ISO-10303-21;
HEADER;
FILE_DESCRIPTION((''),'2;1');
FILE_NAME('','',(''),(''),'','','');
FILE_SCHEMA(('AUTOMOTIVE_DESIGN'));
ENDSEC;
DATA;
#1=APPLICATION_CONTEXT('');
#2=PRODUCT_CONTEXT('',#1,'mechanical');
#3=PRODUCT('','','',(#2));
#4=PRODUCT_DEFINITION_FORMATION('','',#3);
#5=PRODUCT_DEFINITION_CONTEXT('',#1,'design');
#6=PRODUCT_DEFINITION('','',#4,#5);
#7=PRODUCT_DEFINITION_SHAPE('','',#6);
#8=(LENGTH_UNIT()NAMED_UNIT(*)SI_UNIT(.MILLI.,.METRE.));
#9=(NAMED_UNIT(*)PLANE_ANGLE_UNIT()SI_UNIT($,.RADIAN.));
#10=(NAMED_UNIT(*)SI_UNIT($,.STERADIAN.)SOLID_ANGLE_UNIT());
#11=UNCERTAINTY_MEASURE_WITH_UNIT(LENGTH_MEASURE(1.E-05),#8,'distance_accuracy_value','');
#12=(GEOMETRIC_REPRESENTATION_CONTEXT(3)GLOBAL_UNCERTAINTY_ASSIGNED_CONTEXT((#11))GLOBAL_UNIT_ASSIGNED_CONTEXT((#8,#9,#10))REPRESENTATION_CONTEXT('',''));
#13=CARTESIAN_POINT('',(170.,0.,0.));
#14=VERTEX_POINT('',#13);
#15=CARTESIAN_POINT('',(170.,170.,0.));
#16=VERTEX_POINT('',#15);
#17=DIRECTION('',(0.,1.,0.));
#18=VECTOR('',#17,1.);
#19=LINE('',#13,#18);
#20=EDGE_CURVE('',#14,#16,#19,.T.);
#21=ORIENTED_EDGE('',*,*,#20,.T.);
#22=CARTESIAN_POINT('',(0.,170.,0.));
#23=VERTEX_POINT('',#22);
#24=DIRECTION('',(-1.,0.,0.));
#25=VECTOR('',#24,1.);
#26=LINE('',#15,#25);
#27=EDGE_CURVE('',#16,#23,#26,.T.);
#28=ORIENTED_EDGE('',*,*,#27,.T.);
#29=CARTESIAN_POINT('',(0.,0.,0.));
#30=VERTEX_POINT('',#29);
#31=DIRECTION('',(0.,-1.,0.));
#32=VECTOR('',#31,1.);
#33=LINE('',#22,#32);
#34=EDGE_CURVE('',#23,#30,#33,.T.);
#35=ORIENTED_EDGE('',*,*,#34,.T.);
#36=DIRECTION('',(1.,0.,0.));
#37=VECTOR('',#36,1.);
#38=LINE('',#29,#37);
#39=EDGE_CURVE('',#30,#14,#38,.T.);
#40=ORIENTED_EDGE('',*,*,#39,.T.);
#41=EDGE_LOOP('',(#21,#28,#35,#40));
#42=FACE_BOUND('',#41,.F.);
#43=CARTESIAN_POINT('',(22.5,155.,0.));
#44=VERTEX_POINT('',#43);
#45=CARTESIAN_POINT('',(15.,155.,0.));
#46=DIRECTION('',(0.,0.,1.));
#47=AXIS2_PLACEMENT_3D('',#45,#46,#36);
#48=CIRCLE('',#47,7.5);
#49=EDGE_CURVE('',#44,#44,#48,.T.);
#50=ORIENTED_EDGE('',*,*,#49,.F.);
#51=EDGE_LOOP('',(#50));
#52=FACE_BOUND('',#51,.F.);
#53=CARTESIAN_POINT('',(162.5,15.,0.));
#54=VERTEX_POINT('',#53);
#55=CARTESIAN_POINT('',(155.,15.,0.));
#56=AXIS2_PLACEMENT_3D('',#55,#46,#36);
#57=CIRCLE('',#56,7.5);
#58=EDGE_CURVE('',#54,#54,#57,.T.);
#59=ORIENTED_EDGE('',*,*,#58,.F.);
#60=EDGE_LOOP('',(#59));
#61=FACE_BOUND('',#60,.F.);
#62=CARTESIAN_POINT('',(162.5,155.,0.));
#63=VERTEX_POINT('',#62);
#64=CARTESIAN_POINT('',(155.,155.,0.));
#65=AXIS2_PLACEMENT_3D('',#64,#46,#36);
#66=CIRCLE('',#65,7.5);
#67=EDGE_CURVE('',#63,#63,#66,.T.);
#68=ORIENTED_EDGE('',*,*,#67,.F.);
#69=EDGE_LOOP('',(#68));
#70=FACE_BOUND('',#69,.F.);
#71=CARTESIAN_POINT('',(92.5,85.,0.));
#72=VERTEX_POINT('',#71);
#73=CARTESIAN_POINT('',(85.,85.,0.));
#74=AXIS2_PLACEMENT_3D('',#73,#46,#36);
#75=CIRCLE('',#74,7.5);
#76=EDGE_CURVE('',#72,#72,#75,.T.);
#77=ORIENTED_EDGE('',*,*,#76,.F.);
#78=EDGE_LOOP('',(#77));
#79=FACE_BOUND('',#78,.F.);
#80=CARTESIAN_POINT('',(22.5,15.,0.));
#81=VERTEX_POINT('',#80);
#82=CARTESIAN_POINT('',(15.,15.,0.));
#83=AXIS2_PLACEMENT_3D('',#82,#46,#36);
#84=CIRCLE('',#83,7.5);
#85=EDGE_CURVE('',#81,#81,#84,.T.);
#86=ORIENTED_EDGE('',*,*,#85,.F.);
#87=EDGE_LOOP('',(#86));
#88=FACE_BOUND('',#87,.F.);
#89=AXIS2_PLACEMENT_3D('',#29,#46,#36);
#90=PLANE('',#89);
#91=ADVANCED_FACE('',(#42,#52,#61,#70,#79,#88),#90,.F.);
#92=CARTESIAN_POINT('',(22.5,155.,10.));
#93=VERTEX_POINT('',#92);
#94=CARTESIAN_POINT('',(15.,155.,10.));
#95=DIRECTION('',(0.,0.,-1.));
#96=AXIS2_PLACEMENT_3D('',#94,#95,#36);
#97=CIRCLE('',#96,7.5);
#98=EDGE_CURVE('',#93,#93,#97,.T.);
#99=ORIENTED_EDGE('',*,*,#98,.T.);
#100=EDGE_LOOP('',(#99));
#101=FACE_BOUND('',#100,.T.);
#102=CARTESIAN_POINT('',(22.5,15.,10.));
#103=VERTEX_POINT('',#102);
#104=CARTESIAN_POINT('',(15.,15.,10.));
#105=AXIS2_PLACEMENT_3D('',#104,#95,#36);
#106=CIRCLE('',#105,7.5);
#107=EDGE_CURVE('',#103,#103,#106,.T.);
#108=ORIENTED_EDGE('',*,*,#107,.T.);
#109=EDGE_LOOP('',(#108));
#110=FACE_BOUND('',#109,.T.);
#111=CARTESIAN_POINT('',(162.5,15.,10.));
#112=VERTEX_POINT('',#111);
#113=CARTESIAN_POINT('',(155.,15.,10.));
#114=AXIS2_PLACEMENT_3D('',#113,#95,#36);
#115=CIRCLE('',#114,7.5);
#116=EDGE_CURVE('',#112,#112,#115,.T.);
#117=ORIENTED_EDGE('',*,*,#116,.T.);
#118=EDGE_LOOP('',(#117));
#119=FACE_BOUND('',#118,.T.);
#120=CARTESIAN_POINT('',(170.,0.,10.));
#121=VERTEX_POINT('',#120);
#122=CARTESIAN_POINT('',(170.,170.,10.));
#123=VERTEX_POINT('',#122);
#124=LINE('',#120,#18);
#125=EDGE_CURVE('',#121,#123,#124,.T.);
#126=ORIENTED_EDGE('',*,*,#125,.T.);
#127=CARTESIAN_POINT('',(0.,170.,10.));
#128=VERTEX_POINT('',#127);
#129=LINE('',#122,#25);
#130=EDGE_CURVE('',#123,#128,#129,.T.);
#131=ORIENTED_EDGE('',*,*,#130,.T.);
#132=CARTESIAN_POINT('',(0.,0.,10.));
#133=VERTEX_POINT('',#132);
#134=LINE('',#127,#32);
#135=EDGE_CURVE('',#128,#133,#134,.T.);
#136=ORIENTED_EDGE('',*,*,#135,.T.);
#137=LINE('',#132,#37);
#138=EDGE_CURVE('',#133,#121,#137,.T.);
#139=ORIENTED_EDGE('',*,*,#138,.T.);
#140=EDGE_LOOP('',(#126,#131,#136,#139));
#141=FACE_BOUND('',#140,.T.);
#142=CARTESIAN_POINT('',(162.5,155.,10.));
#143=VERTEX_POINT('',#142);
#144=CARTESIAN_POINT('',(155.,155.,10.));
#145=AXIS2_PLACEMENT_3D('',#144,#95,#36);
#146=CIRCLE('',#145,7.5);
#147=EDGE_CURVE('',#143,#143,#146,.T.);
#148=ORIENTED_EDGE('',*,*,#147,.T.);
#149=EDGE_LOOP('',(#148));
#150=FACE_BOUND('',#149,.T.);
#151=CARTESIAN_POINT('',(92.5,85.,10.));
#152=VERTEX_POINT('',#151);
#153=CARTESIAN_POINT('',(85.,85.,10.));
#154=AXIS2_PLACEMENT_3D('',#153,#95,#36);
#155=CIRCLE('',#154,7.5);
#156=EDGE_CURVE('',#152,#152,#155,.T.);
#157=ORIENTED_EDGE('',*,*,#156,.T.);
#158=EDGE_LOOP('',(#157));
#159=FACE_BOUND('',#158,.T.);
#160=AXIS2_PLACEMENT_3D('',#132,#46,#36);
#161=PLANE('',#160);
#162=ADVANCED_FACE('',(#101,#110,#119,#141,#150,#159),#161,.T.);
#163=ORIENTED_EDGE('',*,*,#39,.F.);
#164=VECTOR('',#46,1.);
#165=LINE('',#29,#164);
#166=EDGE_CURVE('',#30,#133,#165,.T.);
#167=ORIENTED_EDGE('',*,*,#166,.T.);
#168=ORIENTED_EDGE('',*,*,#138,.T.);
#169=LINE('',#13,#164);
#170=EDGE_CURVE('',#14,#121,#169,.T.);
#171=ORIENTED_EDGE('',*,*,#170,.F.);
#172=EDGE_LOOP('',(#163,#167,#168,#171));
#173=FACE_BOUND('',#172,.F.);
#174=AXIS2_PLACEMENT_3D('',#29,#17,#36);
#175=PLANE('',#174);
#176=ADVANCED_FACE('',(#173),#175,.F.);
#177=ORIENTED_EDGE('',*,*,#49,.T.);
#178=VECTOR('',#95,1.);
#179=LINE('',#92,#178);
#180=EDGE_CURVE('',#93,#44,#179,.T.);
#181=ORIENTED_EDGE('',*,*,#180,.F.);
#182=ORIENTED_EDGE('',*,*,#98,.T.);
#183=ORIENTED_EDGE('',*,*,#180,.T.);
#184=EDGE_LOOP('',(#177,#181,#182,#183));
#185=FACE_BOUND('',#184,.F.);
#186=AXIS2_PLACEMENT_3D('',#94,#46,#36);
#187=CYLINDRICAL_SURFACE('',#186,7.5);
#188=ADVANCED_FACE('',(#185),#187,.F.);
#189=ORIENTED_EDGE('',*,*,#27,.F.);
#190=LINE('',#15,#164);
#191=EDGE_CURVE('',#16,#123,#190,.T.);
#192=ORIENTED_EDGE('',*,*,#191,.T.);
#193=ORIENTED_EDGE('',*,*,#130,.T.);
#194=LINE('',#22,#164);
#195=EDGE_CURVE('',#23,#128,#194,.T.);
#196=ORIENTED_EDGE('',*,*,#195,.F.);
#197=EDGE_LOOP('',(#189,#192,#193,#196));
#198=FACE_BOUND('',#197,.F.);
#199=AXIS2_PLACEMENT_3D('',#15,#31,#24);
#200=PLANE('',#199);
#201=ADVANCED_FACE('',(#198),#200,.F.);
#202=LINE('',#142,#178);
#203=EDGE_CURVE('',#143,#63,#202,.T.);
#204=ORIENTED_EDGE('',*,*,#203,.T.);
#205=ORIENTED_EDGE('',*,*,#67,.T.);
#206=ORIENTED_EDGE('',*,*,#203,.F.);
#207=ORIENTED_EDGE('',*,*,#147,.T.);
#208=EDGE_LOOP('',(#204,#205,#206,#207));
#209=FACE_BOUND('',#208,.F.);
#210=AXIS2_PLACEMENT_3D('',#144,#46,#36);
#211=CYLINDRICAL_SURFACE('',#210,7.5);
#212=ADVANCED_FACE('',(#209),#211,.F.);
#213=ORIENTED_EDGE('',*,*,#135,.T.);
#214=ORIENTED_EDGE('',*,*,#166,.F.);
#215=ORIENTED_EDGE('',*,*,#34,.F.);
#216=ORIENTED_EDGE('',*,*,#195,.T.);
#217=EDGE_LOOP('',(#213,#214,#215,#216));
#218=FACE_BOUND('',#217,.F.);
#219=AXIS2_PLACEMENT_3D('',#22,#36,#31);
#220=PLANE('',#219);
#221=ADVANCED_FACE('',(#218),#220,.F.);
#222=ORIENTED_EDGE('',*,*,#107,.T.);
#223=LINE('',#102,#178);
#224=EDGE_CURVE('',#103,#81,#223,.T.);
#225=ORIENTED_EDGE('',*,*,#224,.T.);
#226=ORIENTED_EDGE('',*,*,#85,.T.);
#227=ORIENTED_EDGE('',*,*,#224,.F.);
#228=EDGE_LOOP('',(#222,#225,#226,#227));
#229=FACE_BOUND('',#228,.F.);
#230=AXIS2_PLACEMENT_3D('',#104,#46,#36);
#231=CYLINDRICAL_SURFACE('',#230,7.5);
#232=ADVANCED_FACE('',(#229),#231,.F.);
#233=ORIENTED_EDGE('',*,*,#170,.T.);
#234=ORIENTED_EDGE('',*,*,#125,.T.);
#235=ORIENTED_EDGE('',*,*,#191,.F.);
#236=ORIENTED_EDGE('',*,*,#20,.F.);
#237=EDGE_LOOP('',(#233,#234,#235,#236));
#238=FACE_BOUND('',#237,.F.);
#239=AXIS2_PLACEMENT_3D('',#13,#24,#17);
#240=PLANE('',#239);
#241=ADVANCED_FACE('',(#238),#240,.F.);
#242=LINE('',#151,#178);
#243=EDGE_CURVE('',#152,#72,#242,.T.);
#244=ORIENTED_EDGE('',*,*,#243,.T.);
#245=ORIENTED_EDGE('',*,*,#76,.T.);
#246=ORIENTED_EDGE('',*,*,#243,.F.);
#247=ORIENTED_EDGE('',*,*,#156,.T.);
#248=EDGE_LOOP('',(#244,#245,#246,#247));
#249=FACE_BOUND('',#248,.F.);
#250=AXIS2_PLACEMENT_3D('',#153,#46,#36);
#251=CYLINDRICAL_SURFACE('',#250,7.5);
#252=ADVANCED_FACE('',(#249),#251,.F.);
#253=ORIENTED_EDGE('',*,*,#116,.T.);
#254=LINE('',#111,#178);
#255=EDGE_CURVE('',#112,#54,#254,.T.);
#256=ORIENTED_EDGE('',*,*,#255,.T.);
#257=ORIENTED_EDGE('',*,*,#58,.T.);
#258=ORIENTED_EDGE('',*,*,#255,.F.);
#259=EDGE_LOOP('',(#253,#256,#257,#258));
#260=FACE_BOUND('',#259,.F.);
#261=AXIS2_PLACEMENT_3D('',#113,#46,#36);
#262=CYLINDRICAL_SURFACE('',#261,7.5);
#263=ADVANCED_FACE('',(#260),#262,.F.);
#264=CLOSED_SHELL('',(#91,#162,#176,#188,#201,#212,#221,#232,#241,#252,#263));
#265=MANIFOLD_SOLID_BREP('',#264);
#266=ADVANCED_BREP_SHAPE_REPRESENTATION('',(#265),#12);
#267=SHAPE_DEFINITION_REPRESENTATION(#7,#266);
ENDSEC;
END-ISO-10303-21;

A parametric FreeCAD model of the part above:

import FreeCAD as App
import Part
import Sketcher


def add_polygon(sketch, points):
    """Adds a closed chain of lines whose ends are joined by coincident constraints."""
    first, n = sketch.GeometryCount, len(points)
    for a, b in zip(points, points[1:] + points[:1]):
        sketch.addGeometry(Part.LineSegment(App.Vector(*a, 0), App.Vector(*b, 0)), False)
    for i in range(n):
        sketch.addConstraint(Sketcher.Constraint("Coincident", first + i, 2, first + (i + 1) % n, 1))

doc = App.newDocument("Part")
body = doc.addObject("PartDesign::Body", "Body")

# Sketch on XY plane
sketch1 = body.newObject("Sketcher::SketchObject", "Sketch")
sketch1.AttachmentSupport = (doc.getObject("XY_Plane"), [""])
sketch1.MapMode = "FlatFace"
add_polygon(sketch1, [(0, 170), (0, 0), (170, 0), (170, 170)])  # lines 0-3
sketch1.addConstraint([
    Sketcher.Constraint("Vertical", 0),
    Sketcher.Constraint("Horizontal", 1),
    Sketcher.Constraint("Vertical", 2),
    Sketcher.Constraint("Horizontal", 3),
    Sketcher.Constraint("Coincident", 0, 2, -1, 1),
    Sketcher.Constraint("Equal", 3, 0),
    Sketcher.Constraint("DistanceX", 1, 1, 1, 2, 170.0),
])
pad1 = body.newObject("PartDesign::Pad", "Pad")
pad1.Profile = sketch1
pad1.Length = 10

# Sketch on XY plane
sketch2 = body.newObject("Sketcher::SketchObject", "Sketch001")
sketch2.AttachmentSupport = (doc.getObject("XY_Plane"), [""])
sketch2.MapMode = "FlatFace"
sketch2.AttachmentOffset = App.Placement(App.Vector(0, 0, 10), App.Rotation())
sketch2.addGeometry([
    Part.Circle(App.Vector(15, 15, 0), App.Vector(0, 0, 1), 7.5),
    Part.Circle(App.Vector(155, 15, 0), App.Vector(0, 0, 1), 7.5),
    Part.Circle(App.Vector(15, 155, 0), App.Vector(0, 0, 1), 7.5),
    Part.Circle(App.Vector(155, 155, 0), App.Vector(0, 0, 1), 7.5),
], False)
sketch2.addConstraint([
    Sketcher.Constraint("Equal", 0, 1),
    Sketcher.Constraint("Equal", 1, 2),
    Sketcher.Constraint("Equal", 2, 3),
    Sketcher.Constraint("Horizontal", 0, 3, 1, 3),
    Sketcher.Constraint("Horizontal", 2, 3, 3, 3),
    Sketcher.Constraint("Vertical", 0, 3, 2, 3),
    Sketcher.Constraint("Vertical", 1, 3, 3, 3),
    Sketcher.Constraint("Diameter", 0, 15.0),
    Sketcher.Constraint("DistanceX", -1, 1, 0, 3, 15.0),
    Sketcher.Constraint("DistanceY", -1, 1, 0, 3, 15.0),
    Sketcher.Constraint("DistanceX", -1, 1, 1, 3, 155.0),
    Sketcher.Constraint("DistanceY", -1, 1, 2, 3, 155.0),
])
pocket1 = body.newObject("PartDesign::Pocket", "Pocket")
pocket1.Profile = sketch2
pocket1.Length = 10

# Sketch on XY plane
sketch3 = body.newObject("Sketcher::SketchObject", "Sketch002")
sketch3.AttachmentSupport = (doc.getObject("XY_Plane"), [""])
sketch3.MapMode = "FlatFace"
sketch3.AttachmentOffset = App.Placement(App.Vector(0, 0, 10), App.Rotation())
sketch3.addGeometry(Part.Circle(App.Vector(85, 85, 0), App.Vector(0, 0, 1), 7.5), False)
sketch3.addConstraint([
    Sketcher.Constraint("Diameter", 0, 15.0),
    Sketcher.Constraint("DistanceX", -1, 1, 0, 3, 85.0),
    Sketcher.Constraint("DistanceY", -1, 1, 0, 3, 85.0),
])
pocket2 = body.newObject("PartDesign::Pocket", "Pocket001")
pocket2.Profile = sketch3
pocket2.Length = 10

doc.recompute()
